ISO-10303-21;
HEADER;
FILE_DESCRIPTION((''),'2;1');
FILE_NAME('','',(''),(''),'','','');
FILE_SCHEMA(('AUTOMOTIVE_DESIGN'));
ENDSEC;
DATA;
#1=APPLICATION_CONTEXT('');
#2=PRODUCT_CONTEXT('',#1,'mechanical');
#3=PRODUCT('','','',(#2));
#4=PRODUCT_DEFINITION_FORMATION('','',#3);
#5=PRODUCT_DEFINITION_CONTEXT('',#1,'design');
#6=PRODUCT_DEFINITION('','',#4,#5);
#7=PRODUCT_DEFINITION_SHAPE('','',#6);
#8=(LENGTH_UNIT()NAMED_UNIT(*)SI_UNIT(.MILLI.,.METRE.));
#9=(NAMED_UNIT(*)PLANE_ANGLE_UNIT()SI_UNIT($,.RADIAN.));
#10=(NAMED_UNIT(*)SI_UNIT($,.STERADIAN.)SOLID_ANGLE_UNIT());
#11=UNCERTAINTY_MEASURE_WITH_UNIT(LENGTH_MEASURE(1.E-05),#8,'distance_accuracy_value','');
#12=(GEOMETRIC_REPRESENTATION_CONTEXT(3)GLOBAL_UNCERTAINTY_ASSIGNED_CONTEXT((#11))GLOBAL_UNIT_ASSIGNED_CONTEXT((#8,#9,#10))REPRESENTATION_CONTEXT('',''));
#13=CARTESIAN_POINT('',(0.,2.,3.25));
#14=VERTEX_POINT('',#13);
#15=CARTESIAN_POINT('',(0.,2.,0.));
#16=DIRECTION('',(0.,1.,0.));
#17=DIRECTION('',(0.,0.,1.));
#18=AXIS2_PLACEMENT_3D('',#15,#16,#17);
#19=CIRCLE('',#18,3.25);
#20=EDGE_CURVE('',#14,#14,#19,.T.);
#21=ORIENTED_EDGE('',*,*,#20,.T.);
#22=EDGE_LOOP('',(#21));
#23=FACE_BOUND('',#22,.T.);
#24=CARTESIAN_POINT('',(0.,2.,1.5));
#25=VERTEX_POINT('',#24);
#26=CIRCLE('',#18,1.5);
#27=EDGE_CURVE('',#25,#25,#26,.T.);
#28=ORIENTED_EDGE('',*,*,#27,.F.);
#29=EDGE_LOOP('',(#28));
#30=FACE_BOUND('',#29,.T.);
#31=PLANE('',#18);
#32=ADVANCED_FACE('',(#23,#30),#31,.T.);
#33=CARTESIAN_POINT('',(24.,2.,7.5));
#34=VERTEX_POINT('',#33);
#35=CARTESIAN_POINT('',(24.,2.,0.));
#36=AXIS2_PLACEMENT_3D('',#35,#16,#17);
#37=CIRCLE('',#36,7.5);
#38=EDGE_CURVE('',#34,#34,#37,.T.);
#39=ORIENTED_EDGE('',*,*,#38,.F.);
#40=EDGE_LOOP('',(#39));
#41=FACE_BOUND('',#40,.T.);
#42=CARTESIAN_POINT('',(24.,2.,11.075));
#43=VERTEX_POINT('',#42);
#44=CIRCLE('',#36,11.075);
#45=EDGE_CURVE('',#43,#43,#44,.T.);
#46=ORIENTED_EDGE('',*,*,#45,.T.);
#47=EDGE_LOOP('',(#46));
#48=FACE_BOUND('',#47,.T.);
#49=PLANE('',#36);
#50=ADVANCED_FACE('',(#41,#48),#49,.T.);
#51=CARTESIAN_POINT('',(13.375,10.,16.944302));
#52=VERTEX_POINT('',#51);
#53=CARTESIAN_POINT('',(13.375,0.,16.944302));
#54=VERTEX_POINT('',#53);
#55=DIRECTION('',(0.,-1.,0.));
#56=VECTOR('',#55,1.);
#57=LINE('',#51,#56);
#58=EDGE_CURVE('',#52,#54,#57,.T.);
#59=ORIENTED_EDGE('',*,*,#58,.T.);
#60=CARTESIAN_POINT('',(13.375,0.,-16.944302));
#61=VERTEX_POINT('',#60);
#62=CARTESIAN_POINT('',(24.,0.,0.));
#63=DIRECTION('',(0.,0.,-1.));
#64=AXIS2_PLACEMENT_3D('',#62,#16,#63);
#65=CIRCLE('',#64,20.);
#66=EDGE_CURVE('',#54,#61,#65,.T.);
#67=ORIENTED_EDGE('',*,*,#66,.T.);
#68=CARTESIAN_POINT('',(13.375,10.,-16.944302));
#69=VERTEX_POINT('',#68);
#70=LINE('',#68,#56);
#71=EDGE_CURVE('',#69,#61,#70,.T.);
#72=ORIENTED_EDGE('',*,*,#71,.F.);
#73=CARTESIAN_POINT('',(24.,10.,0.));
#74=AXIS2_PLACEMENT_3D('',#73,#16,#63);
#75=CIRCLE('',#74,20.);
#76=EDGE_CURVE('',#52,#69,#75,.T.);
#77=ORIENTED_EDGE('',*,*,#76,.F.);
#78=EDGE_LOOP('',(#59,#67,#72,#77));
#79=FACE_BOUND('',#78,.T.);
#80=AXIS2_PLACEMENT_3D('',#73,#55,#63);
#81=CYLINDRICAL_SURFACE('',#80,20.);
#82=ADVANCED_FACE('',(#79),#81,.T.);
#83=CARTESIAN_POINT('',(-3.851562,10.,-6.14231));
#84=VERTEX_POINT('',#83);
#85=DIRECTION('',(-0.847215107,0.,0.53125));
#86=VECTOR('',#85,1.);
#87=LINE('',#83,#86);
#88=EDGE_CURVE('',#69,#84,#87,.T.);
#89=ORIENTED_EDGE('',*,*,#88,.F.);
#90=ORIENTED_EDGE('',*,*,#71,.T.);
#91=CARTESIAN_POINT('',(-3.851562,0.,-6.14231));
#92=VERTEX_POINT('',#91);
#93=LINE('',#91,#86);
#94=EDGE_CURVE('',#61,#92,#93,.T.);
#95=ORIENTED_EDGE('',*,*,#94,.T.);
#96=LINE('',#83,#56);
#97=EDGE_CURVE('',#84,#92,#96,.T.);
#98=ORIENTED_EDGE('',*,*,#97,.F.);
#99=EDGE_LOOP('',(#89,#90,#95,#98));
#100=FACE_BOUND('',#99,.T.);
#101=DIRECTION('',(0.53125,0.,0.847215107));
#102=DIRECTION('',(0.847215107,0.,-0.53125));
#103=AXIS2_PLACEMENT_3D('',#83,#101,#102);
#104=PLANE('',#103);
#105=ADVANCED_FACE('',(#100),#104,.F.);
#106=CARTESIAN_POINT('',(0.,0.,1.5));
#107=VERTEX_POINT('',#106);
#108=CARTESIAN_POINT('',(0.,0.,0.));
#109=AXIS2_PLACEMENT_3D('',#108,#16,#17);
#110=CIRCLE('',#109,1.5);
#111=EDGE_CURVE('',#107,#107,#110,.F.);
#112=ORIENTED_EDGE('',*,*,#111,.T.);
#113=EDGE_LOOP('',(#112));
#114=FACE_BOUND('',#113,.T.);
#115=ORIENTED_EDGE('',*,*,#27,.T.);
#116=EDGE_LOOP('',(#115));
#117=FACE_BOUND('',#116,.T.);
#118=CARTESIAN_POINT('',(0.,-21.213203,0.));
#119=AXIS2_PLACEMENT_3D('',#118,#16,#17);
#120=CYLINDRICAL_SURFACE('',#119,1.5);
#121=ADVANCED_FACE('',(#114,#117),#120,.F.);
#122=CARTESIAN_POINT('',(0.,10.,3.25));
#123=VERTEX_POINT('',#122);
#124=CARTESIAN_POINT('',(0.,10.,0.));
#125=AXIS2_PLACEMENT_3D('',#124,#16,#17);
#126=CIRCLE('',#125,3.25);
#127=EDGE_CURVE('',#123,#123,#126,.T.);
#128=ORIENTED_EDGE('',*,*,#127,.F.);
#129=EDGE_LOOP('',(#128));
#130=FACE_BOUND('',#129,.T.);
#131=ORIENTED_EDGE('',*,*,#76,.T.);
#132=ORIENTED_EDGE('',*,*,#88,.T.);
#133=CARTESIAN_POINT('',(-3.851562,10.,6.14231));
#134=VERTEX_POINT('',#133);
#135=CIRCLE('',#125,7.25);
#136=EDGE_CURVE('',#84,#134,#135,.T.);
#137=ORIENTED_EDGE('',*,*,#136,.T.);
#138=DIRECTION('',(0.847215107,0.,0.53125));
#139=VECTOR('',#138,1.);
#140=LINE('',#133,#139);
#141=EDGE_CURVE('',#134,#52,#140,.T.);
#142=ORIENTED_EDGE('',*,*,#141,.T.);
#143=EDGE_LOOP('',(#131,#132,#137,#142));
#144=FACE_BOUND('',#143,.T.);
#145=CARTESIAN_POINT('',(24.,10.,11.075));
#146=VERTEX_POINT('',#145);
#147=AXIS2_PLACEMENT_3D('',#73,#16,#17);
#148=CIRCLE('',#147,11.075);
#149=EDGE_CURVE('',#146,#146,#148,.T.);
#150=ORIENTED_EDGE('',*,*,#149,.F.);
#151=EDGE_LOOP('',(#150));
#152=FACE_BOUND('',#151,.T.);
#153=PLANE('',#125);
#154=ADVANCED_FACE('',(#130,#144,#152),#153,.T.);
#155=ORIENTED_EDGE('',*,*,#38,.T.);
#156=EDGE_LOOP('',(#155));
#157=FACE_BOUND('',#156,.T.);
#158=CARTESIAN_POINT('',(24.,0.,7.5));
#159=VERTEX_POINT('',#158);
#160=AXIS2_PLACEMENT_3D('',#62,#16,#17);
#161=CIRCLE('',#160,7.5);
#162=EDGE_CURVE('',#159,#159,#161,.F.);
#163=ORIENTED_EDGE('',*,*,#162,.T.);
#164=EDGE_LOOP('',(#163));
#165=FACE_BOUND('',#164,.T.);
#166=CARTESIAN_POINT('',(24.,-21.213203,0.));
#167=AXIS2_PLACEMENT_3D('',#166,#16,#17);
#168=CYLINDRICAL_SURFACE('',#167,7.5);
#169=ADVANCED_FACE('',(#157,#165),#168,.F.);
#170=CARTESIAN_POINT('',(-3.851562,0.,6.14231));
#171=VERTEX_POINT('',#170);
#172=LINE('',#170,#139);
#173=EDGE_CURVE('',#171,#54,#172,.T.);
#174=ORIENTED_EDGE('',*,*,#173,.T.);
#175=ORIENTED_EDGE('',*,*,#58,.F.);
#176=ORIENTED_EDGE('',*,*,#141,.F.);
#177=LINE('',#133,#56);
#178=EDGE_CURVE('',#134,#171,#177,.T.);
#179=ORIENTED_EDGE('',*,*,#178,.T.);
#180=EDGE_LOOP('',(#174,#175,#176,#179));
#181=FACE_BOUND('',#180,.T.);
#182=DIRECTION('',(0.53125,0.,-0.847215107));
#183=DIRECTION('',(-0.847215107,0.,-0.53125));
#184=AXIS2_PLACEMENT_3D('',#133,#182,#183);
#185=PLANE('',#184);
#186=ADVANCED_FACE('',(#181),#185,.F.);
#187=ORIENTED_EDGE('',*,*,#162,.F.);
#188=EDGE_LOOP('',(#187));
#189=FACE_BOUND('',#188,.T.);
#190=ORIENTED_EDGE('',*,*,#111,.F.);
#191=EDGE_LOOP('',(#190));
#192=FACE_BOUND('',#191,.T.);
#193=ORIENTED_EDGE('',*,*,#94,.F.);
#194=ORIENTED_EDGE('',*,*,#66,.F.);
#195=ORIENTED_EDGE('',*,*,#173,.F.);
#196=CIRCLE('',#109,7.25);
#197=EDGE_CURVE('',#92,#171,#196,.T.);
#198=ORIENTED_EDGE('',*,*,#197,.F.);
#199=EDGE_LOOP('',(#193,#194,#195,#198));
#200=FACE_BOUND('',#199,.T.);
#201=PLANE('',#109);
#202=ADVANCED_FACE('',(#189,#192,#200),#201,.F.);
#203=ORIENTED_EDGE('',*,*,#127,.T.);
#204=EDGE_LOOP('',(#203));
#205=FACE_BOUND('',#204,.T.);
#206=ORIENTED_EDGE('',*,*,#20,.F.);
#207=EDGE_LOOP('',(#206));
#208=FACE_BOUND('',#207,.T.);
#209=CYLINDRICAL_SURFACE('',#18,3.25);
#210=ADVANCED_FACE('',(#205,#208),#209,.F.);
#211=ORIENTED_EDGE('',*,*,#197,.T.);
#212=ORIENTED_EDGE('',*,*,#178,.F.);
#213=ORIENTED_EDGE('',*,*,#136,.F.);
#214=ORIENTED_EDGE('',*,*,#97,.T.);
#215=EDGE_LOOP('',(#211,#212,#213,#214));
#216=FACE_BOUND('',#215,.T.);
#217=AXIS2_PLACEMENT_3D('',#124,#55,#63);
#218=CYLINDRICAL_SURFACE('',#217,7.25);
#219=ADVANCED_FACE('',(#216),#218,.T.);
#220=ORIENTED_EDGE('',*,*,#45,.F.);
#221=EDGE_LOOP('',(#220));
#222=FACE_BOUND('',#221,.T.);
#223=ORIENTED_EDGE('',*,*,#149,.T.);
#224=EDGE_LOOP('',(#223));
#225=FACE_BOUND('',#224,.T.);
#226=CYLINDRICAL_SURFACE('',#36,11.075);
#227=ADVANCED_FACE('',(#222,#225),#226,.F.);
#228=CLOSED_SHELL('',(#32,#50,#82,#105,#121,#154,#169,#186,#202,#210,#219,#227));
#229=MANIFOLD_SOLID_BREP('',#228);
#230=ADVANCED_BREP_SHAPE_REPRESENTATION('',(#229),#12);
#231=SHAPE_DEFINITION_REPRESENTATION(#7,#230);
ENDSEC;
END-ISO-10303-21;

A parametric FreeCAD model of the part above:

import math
import FreeCAD as App
import Part
import Sketcher
from FreeCAD import Vector
Q = App.Units.Quantity

doc = App.newDocument("Part")
body = doc.addObject("PartDesign::Body", "Body")

# Sketch on XZ plane
sketch1 = body.newObject("Sketcher::SketchObject", "Sketch")
sketch1.AttachmentSupport = (doc.getObject("XZ_Plane"), [""])
sketch1.MapMode = "FlatFace"
sketch1.addGeometry(Part.LineSegment(Vector(-4, 6, 0), Vector(13, 17, 0)), False)
sketch1.addGeometry(Part.ArcOfCircle(Part.Circle(Vector(24, 0, 0), Vector(0, 0, 1), 20), math.radians(-122), math.radians(122)), False)
sketch1.addGeometry(Part.LineSegment(Vector(13, -17, 0), Vector(-4, -6, 0)), False)
sketch1.addGeometry(Part.ArcOfCircle(Part.Circle(Vector(0, 0, 0), Vector(0, 0, 1), 7), math.radians(122), math.radians(238)), False)
sketch1.addConstraint(Sketcher.Constraint("Tangent", 0, 2, 1, 2))
sketch1.addConstraint(Sketcher.Constraint("Tangent", 1, 1, 2, 1))
sketch1.addConstraint(Sketcher.Constraint("Tangent", 2, 2, 3, 2))
sketch1.addConstraint(Sketcher.Constraint("Tangent", 3, 1, 0, 1))
sketch1.addConstraint(Sketcher.Constraint("Coincident", 3, 3, -1, 1))
sketch1.addConstraint(Sketcher.Constraint("PointOnObject", 1, 3, -1))
sketch1.addConstraint(Sketcher.Constraint("Radius", 1, Q("20 mm")))
sketch1.addConstraint(Sketcher.Constraint("Radius", 3, Q("7.25 mm")))
sketch1.addConstraint(Sketcher.Constraint("DistanceX", -1, 1, 1, 3, Q("24 mm")))
pad1 = body.newObject("PartDesign::Pad", "Pad")
pad1.Profile = sketch1
pad1.Length = 10
pad1.Reversed = True

# Sketch on XZ plane
sketch2 = body.newObject("Sketcher::SketchObject", "Sketch001")
sketch2.AttachmentSupport = (doc.getObject("XZ_Plane"), [""])
sketch2.MapMode = "FlatFace"
sketch2.AttachmentOffset = App.Placement(Vector(0, 0, -10), App.Rotation())
sketch2.addGeometry(Part.Circle(Vector(0, 0, 0), Vector(0, 0, 1), 3.2), False)
sketch2.addGeometry(Part.Circle(Vector(24, 0, 0), Vector(0, 0, 1), 11.1), False)
sketch2.addConstraint(Sketcher.Constraint("Coincident", 0, 3, -1, 1))
sketch2.addConstraint(Sketcher.Constraint("PointOnObject", 1, 3, -1))
sketch2.addConstraint(Sketcher.Constraint("Diameter", 0, Q("6.5 mm")))
sketch2.addConstraint(Sketcher.Constraint("Diameter", 1, Q("22.15 mm")))
sketch2.addConstraint(Sketcher.Constraint("DistanceX", -1, 1, 1, 3, Q("24 mm")))
pocket1 = body.newObject("PartDesign::Pocket", "Pocket")
pocket1.Profile = sketch2
pocket1.Length = 8
pocket1.Reversed = True

# Sketch on XZ plane
sketch3 = body.newObject("Sketcher::SketchObject", "Sketch002")
sketch3.AttachmentSupport = (doc.getObject("XZ_Plane"), [""])
sketch3.MapMode = "FlatFace"
sketch3.AttachmentOffset = App.Placement(Vector(0, 0, -2), App.Rotation())
sketch3.addGeometry(Part.Circle(Vector(24, 0, 0), Vector(0, 0, 1), 7.5), False)
sketch3.addGeometry(Part.Circle(Vector(0, 0, 0), Vector(0, 0, 1), 1.5), False)
sketch3.addConstraint(Sketcher.Constraint("Coincident", 1, 3, -1, 1))
sketch3.addConstraint(Sketcher.Constraint("PointOnObject", 0, 3, -1))
sketch3.addConstraint(Sketcher.Constraint("Diameter", 0, Q("15 mm")))
sketch3.addConstraint(Sketcher.Constraint("Diameter", 1, Q("3 mm")))
sketch3.addConstraint(Sketcher.Constraint("DistanceX", -1, 1, 0, 3, Q("24 mm")))
pocket2 = body.newObject("PartDesign::Pocket", "Pocket001")
pocket2.Profile = sketch3
pocket2.Length = 2
pocket2.Reversed = True

doc.recompute()
